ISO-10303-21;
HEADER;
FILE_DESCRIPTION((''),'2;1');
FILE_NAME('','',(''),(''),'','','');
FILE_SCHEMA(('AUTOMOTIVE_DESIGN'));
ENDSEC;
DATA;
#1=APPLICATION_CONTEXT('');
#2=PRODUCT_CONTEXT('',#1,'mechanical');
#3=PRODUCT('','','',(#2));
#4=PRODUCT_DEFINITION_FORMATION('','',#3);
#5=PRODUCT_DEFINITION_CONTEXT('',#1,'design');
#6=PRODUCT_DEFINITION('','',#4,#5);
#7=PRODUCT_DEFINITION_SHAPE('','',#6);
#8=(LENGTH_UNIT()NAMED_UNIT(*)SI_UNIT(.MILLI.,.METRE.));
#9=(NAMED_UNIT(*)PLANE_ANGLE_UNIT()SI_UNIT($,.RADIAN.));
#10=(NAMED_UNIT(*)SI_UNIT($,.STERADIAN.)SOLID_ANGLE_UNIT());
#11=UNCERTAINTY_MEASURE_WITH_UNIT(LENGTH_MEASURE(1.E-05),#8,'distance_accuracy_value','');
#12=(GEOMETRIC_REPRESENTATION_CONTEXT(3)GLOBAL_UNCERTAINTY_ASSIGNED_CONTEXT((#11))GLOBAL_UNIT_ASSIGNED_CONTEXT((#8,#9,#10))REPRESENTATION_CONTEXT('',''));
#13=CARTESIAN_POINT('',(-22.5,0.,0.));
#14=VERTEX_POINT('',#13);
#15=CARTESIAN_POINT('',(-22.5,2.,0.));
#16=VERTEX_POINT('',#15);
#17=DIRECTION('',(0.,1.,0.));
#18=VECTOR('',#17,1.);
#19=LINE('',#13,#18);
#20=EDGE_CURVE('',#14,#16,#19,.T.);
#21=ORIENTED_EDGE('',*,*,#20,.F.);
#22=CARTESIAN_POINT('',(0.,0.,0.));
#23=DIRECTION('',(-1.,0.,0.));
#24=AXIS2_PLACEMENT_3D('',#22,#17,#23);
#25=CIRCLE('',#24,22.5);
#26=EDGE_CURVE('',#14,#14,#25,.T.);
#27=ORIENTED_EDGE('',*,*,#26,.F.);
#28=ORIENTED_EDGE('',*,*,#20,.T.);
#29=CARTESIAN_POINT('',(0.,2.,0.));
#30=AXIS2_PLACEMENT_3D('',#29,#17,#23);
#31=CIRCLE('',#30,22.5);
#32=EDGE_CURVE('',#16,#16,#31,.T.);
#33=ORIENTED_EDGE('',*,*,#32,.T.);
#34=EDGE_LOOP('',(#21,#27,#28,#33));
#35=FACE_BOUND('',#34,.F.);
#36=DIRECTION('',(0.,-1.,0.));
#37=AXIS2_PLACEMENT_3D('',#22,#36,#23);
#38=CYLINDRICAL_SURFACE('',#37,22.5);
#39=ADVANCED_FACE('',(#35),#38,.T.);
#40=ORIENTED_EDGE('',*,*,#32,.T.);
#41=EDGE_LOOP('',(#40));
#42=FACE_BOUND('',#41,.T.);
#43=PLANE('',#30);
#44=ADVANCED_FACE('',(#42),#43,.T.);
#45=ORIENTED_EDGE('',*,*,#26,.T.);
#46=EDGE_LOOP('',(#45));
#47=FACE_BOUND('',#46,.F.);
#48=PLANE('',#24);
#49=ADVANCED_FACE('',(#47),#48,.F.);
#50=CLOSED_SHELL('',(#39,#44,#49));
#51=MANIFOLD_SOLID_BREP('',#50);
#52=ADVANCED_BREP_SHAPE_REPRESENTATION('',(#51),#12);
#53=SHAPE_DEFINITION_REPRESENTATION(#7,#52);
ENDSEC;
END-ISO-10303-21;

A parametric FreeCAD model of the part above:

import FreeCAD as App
import Part
import Sketcher
from FreeCAD import Vector
Q = App.Units.Quantity

doc = App.newDocument("Part")
body = doc.addObject("PartDesign::Body", "Body")

sketch1 = body.newObject("Sketcher::SketchObject", "Sketch")
sketch1.AttachmentSupport = (doc.getObject("XZ_Plane"), [""])
sketch1.MapMode = "FlatFace"
sketch1.addGeometry(Part.Circle(Vector(0, 0, 0), Vector(0, 0, 1), 22.5), False)
sketch1.addConstraint(Sketcher.Constraint("Coincident", 0, 3, -1, 1))
sketch1.addConstraint(Sketcher.Constraint("Diameter", 0, Q("45 mm")))
pad1 = body.newObject("PartDesign::Pad", "Pad")
pad1.Profile = sketch1
pad1.Length = 2
pad1.Reversed = True

doc.recompute()
